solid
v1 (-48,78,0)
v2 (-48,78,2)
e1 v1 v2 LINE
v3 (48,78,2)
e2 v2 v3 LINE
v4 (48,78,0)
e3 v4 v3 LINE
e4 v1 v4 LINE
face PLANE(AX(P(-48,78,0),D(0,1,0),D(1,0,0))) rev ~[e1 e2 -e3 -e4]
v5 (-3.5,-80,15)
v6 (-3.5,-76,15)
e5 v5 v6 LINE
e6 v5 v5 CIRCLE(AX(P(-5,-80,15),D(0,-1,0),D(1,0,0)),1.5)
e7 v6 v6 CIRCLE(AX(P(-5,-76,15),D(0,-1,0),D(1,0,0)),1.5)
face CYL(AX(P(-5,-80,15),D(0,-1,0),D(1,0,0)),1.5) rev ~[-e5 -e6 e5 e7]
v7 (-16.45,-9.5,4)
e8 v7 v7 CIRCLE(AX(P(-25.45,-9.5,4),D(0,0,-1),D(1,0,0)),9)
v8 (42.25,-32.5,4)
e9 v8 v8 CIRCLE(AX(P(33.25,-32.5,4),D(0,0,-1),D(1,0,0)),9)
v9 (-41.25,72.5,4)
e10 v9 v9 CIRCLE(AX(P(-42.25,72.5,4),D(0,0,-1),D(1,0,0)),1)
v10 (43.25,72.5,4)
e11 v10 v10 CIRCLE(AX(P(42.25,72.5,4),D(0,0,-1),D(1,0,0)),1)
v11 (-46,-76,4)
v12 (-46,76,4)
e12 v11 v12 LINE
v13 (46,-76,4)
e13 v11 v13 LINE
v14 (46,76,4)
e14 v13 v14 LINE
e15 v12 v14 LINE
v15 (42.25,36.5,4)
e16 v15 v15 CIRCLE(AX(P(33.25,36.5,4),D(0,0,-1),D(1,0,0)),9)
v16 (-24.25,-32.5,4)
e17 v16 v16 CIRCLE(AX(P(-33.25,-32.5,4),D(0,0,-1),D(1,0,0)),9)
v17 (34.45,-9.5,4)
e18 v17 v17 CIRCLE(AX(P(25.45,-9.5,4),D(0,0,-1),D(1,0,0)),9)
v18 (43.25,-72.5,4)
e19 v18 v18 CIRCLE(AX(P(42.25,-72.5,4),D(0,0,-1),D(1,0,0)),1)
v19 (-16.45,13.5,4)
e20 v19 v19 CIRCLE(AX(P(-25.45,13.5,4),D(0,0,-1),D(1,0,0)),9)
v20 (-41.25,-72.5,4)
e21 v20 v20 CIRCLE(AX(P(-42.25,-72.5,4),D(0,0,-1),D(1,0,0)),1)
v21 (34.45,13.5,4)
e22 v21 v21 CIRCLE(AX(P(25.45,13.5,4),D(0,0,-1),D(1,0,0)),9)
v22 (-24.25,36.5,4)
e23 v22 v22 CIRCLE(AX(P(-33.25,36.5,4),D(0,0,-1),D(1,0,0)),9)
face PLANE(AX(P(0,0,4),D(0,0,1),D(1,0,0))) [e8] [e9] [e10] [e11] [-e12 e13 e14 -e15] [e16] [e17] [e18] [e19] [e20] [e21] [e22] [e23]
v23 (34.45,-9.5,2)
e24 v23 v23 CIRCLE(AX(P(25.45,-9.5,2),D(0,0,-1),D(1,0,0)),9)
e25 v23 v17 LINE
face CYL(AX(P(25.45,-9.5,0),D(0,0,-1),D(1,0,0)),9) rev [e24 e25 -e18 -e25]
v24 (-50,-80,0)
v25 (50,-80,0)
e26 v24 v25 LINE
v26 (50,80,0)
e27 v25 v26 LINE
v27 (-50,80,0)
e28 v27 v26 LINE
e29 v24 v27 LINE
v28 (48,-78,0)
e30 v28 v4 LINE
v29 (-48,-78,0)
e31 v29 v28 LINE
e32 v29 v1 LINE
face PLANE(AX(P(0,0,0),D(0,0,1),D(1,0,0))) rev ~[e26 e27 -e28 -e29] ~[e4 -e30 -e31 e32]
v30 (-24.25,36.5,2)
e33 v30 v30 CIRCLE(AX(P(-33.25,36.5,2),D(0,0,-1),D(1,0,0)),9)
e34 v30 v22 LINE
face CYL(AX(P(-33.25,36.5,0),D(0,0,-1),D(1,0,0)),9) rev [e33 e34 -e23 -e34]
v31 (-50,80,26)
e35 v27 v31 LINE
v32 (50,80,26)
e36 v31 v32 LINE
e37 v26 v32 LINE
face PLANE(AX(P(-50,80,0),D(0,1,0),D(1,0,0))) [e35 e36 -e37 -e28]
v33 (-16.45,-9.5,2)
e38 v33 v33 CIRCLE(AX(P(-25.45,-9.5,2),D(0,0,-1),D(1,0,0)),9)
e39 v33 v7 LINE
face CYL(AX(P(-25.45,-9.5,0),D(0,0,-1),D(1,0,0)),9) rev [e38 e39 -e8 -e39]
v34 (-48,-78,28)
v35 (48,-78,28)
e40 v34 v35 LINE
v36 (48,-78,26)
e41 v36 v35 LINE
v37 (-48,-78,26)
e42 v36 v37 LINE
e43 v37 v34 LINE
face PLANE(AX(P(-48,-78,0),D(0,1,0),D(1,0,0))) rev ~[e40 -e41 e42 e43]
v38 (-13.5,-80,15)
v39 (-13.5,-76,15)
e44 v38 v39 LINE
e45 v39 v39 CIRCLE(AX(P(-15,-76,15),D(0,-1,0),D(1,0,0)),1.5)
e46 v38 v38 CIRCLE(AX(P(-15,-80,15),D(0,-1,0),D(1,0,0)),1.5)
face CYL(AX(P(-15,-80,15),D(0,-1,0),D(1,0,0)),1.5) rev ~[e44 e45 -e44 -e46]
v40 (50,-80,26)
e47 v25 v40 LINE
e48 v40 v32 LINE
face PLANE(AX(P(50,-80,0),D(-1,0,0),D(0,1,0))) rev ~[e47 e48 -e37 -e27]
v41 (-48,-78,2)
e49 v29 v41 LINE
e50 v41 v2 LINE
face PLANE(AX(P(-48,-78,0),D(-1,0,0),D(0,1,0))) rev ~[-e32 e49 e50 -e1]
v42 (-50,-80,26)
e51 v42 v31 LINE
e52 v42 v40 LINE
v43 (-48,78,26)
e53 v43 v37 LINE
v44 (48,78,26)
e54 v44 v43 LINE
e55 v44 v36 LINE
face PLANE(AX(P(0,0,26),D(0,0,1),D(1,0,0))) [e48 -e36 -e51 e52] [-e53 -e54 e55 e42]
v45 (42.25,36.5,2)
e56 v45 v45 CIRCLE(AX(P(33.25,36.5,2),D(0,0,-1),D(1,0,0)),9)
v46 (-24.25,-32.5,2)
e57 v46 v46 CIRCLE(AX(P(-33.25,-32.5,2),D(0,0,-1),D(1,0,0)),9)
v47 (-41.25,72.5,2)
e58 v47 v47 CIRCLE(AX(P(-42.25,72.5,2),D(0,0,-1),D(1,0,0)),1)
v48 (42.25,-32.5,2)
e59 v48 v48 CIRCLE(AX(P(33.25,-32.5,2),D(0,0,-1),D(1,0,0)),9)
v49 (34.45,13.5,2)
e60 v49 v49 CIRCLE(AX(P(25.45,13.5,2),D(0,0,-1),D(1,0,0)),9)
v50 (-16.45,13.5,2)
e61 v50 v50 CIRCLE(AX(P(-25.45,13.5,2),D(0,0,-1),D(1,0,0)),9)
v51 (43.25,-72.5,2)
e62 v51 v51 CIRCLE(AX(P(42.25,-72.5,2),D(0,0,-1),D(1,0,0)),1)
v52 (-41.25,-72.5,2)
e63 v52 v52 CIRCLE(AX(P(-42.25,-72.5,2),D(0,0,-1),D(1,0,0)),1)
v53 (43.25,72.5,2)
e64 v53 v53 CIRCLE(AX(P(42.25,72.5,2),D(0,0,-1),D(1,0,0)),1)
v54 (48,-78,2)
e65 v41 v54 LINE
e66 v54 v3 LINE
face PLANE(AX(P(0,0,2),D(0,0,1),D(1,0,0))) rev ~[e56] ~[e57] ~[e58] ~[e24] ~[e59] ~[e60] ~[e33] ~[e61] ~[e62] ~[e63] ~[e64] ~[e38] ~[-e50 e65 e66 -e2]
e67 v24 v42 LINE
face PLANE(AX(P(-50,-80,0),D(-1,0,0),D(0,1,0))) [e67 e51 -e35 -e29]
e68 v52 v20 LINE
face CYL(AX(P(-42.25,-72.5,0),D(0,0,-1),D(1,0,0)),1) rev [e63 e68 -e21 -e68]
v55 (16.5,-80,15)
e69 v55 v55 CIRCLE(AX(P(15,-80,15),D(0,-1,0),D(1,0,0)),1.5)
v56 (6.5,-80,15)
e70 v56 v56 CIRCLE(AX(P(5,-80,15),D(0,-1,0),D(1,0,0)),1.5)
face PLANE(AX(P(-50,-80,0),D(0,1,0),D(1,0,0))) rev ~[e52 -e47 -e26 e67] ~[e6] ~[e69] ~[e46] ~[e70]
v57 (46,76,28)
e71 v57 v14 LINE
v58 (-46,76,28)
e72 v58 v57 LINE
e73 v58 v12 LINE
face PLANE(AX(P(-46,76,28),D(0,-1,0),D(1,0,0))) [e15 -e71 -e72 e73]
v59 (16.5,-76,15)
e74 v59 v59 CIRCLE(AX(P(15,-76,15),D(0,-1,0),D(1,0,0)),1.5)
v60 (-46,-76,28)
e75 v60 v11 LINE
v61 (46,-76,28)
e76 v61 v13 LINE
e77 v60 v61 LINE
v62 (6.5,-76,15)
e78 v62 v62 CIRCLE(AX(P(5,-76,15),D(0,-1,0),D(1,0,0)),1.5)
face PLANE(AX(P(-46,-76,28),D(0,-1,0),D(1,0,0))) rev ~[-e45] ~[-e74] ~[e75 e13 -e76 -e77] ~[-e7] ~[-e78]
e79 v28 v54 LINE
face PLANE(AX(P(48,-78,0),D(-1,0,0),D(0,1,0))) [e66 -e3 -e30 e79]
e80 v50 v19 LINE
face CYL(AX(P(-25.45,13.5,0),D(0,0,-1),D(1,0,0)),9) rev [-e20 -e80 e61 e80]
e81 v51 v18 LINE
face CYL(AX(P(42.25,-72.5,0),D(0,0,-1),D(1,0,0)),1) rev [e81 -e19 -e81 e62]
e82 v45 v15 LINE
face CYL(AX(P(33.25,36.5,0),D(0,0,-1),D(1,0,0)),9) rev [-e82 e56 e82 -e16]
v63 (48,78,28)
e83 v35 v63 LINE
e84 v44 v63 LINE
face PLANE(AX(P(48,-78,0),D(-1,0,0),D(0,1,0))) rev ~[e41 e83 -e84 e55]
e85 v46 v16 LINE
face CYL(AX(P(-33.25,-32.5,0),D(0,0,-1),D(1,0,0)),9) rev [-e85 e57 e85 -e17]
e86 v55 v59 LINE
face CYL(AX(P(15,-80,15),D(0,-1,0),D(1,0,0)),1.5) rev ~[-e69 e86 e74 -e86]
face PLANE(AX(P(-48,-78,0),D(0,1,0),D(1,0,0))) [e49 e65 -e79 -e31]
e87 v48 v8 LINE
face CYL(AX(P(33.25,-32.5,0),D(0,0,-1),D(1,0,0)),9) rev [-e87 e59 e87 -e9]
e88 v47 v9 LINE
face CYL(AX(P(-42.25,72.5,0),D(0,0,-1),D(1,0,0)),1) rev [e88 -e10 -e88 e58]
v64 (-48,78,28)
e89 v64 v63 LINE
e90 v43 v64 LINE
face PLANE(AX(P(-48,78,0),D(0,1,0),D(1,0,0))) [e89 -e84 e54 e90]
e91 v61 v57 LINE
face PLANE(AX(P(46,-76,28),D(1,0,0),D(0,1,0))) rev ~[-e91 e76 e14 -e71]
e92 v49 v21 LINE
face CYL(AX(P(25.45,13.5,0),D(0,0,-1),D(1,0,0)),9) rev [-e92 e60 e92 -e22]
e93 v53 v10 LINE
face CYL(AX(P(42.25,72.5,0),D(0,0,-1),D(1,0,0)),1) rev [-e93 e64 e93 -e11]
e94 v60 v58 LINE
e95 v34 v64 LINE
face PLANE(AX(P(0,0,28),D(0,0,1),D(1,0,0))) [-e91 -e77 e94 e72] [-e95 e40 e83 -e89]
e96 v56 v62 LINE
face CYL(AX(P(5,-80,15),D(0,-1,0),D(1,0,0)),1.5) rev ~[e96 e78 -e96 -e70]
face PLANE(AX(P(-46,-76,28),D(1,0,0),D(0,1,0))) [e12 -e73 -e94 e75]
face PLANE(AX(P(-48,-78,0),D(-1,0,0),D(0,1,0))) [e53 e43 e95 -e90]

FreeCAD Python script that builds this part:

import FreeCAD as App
import Part
import Sketcher


def add_polygon(sketch, points):
    """Adds a closed chain of lines whose ends are joined by coincident constraints."""
    first, n = sketch.GeometryCount, len(points)
    for a, b in zip(points, points[1:] + points[:1]):
        sketch.addGeometry(Part.LineSegment(App.Vector(*a, 0), App.Vector(*b, 0)), False)
    for i in range(n):
        sketch.addConstraint(Sketcher.Constraint("Coincident", first + i, 2, first + (i + 1) % n, 1))

doc = App.newDocument("Part")
body = doc.addObject("PartDesign::Body", "Body")

sketch1 = body.newObject("Sketcher::SketchObject", "Sketch")
sketch1.AttachmentSupport = (doc.getObject("XY_Plane"), [""])
sketch1.MapMode = "FlatFace"
add_polygon(sketch1, [(-50, 80), (-50, -80), (50, -80), (50, 80)])
sketch1.addConstraint([
    Sketcher.Constraint("Vertical", 0),
    Sketcher.Constraint("Horizontal", 1),
    Sketcher.Constraint("Vertical", 2),
    Sketcher.Constraint("Horizontal", 3),
    Sketcher.Constraint("Symmetric", 0, 2, 2, 2, -1, 1),
    Sketcher.Constraint("DistanceX", 1, 1, 1, 2, 100.0),
    Sketcher.Constraint("DistanceY", 0, 2, 0, 1, 160.0),
])
pad1 = body.newObject("PartDesign::Pad", "Pad")
pad1.Profile = sketch1
pad1.Length = 26

sketch2 = body.newObject("Sketcher::SketchObject", "Sketch001")
sketch2.AttachmentSupport = (doc.getObject("XY_Plane"), [""])
sketch2.MapMode = "FlatFace"
add_polygon(sketch2, [(-48, 78), (-48, -78), (48, -78), (48, 78)])
sketch2.addConstraint([
    Sketcher.Constraint("Vertical", 0),
    Sketcher.Constraint("Horizontal", 1),
    Sketcher.Constraint("Vertical", 2),
    Sketcher.Constraint("Horizontal", 3),
    Sketcher.Constraint("Symmetric", 0, 2, 2, 2, -1, 1),
    Sketcher.Constraint("DistanceX", 1, 1, 1, 2, 96.0),
    Sketcher.Constraint("DistanceY", 0, 2, 0, 1, 156.0),
])
pad2 = body.newObject("PartDesign::Pad", "Pad001")
pad2.Profile = sketch2
pad2.Length = 28

sketch3 = body.newObject("Sketcher::SketchObject", "Sketch002")
sketch3.AttachmentSupport = (doc.getObject("XY_Plane"), [""])
sketch3.MapMode = "FlatFace"
sketch3.AttachmentOffset = App.Placement(App.Vector(0, 0, 28), App.Rotation())
add_polygon(sketch3, [(-46, 76), (-46, -76), (46, -76), (46, 76)])
sketch3.addConstraint([
    Sketcher.Constraint("Vertical", 0),
    Sketcher.Constraint("Horizontal", 1),
    Sketcher.Constraint("Vertical", 2),
    Sketcher.Constraint("Horizontal", 3),
    Sketcher.Constraint("Symmetric", 0, 2, 2, 2, -1, 1),
    Sketcher.Constraint("DistanceX", 1, 1, 1, 2, 92.0),
    Sketcher.Constraint("DistanceY", 0, 2, 0, 1, 152.0),
])
pocket1 = body.newObject("PartDesign::Pocket", "Pocket")
pocket1.Profile = sketch3
pocket1.Length = 24

sketch4 = body.newObject("Sketcher::SketchObject", "Sketch003")
sketch4.AttachmentSupport = (doc.getObject("XY_Plane"), [""])
sketch4.MapMode = "FlatFace"
sketch4.addGeometry([
    Part.Circle(App.Vector(33, 36, 0), App.Vector(0, 0, 1), 9),
    Part.Circle(App.Vector(25, 14, 0), App.Vector(0, 0, 1), 9),
    Part.Circle(App.Vector(25, -10, 0), App.Vector(0, 0, 1), 9),
    Part.Circle(App.Vector(33, -32, 0), App.Vector(0, 0, 1), 9),
    Part.Circle(App.Vector(-33, 36, 0), App.Vector(0, 0, 1), 9),
    Part.Circle(App.Vector(-25, 14, 0), App.Vector(0, 0, 1), 9),
    Part.Circle(App.Vector(-25, -10, 0), App.Vector(0, 0, 1), 9),
    Part.Circle(App.Vector(-33, -32, 0), App.Vector(0, 0, 1), 9),
], False)
sketch4.addConstraint([
    Sketcher.Constraint("Equal", 0, 1),
    Sketcher.Constraint("Equal", 1, 2),
    Sketcher.Constraint("Equal", 2, 3),
    Sketcher.Constraint("Equal", 3, 4),
    Sketcher.Constraint("Equal", 4, 5),
    Sketcher.Constraint("Equal", 5, 6),
    Sketcher.Constraint("Equal", 6, 7),
    Sketcher.Constraint("Symmetric", 0, 3, 4, 3, -2),
    Sketcher.Constraint("Symmetric", 1, 3, 5, 3, -2),
    Sketcher.Constraint("Symmetric", 2, 3, 6, 3, -2),
    Sketcher.Constraint("Symmetric", 3, 3, 7, 3, -2),
    Sketcher.Constraint("Vertical", 1, 3, 2, 3),
    Sketcher.Constraint("Vertical", 0, 3, 3, 3),
    Sketcher.Constraint("Diameter", 0, 18.0),
    Sketcher.Constraint("DistanceY", 1, 3, 0, 3, 23.0),
    Sketcher.Constraint("DistanceY", 2, 3, 1, 3, 23.0),
    Sketcher.Constraint("DistanceY", 3, 3, 2, 3, 23.0),
    Sketcher.Constraint("DistanceY", -1, 1, 0, 3, 36.5),
    Sketcher.Constraint("DistanceX", 1, 3, 0, 3, 7.8),
    Sketcher.Constraint("DistanceX", 4, 3, 1, 3, 58.7),
])
pocket2 = body.newObject("PartDesign::Pocket", "Pocket001")
pocket2.Profile = sketch4
pocket2.Type = "ThroughAll"
pocket2.Reversed = True

sketch5 = body.newObject("Sketcher::SketchObject", "Sketch004")
sketch5.AttachmentSupport = (doc.getObject("XY_Plane"), [""])
sketch5.MapMode = "FlatFace"
sketch5.addGeometry([
    Part.Circle(App.Vector(42.2, 72.5, 0), App.Vector(0, 0, 1), 1),
    Part.Circle(App.Vector(-42.2, 72.5, 0), App.Vector(0, 0, 1), 1),
    Part.Circle(App.Vector(42.2, -72.5, 0), App.Vector(0, 0, 1), 1),
    Part.Circle(App.Vector(-42.2, -72.5, 0), App.Vector(0, 0, 1), 1),
], False)
sketch5.addConstraint([
    Sketcher.Constraint("Equal", 0, 1),
    Sketcher.Constraint("Equal", 1, 2),
    Sketcher.Constraint("Equal", 2, 3),
    Sketcher.Constraint("Symmetric", 1, 3, 2, 3, -1, 1),
    Sketcher.Constraint("Symmetric", 0, 3, 3, 3, -1, 1),
    Sketcher.Constraint("Symmetric", 0, 3, 1, 3, -2),
    Sketcher.Constraint("Diameter", 0, 2.0),
    Sketcher.Constraint("DistanceY", 2, 3, 0, 3, 145.0),
    Sketcher.Constraint("DistanceX", 1, 3, 0, 3, 84.5),
])
pocket3 = body.newObject("PartDesign::Pocket", "Pocket002")
pocket3.Profile = sketch5
pocket3.Type = "ThroughAll"
pocket3.Reversed = True

sketch6 = body.newObject("Sketcher::SketchObject", "Sketch005")
sketch6.AttachmentSupport = (doc.getObject("XY_Plane"), [""])
sketch6.MapMode = "FlatFace"
add_polygon(sketch6, [(-48, 78), (-48, -78), (48, -78), (48, 78)])
sketch6.addConstraint([
    Sketcher.Constraint("Vertical", 0),
    Sketcher.Constraint("Horizontal", 1),
    Sketcher.Constraint("Vertical", 2),
    Sketcher.Constraint("Horizontal", 3),
    Sketcher.Constraint("Symmetric", 0, 2, 2, 2, -1, 1),
    Sketcher.Constraint("DistanceX", 1, 1, 1, 2, 96.0),
    Sketcher.Constraint("DistanceY", 0, 2, 0, 1, 156.0),
])
pocket4 = body.newObject("PartDesign::Pocket", "Pocket003")
pocket4.Profile = sketch6
pocket4.Length = 2
pocket4.Reversed = True

sketch7 = body.newObject("Sketcher::SketchObject", "Sketch006")
sketch7.AttachmentSupport = (doc.getObject("XZ_Plane"), [""])
sketch7.MapMode = "FlatFace"
sketch7.AttachmentOffset = App.Placement(App.Vector(0, 0, 80), App.Rotation())
sketch7.addGeometry([
    Part.Circle(App.Vector(-15, 15, 0), App.Vector(0, 0, 1), 1.5),
    Part.Circle(App.Vector(-5, 15, 0), App.Vector(0, 0, 1), 1.5),
    Part.Circle(App.Vector(5, 15, 0), App.Vector(0, 0, 1), 1.5),
    Part.Circle(App.Vector(15, 15, 0), App.Vector(0, 0, 1), 1.5),
], False)
sketch7.addConstraint([
    Sketcher.Constraint("Equal", 0, 1),
    Sketcher.Constraint("Equal", 1, 2),
    Sketcher.Constraint("Equal", 2, 3),
    Sketcher.Constraint("Symmetric", 1, 3, 2, 3, -2),
    Sketcher.Constraint("Symmetric", 0, 3, 3, 3, -2),
    Sketcher.Constraint("Horizontal", 0, 3, 1, 3),
    Sketcher.Constraint("Diameter", 0, 3.0),
    Sketcher.Constraint("DistanceX", 0, 3, -1, 1, 15.0),
    Sketcher.Constraint("DistanceY", -1, 1, 0, 3, 15.0),
    Sketcher.Constraint("DistanceX", 1, 3, -1, 1, 5.0),
])
pocket5 = body.newObject("PartDesign::Pocket", "Pocket004")
pocket5.Profile = sketch7
pocket5.Length = 10

doc.recompute()
